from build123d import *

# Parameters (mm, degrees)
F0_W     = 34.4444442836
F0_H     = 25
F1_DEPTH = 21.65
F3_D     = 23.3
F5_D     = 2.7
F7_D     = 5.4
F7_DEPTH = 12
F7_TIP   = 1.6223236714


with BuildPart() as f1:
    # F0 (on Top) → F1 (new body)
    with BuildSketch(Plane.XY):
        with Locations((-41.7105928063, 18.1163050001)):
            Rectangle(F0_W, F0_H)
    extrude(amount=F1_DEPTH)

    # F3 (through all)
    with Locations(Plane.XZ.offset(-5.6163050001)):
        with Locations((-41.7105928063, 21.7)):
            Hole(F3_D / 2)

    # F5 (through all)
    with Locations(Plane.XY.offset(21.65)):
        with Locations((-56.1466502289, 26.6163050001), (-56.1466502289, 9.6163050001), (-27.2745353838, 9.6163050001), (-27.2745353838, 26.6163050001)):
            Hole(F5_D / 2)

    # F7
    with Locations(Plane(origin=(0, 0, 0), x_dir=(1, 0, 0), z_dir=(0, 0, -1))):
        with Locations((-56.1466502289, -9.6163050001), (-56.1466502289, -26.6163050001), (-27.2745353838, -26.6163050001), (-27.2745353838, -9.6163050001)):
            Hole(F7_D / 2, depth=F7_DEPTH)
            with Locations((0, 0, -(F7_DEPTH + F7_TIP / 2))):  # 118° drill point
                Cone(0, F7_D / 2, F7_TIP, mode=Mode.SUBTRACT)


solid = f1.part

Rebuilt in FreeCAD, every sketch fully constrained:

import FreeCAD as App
import Part
import Sketcher

V = App.Vector

doc = App.newDocument("Part")
body = doc.addObject("PartDesign::Body", "Body")

sketch1 = doc.addObject("Sketcher::SketchObject", "Sketch")
body.addObject(sketch1)
sketch1.AttachmentSupport = (doc.XY_Plane, [""])
sketch1.MapMode = "FlatFace"
sketch1.addGeometry(Part.LineSegment(V(-59, 31, 0), V(-59, 6, 0)), False)
sketch1.addGeometry(Part.LineSegment(V(-59, 6, 0), V(-24, 6, 0)), False)
sketch1.addGeometry(Part.LineSegment(V(-24, 6, 0), V(-24, 31, 0)), False)
sketch1.addGeometry(Part.LineSegment(V(-24, 31, 0), V(-59, 31, 0)), False)
sketch1.addConstraint(Sketcher.Constraint("Coincident", 0, 2, 1, 1))
sketch1.addConstraint(Sketcher.Constraint("Coincident", 1, 2, 2, 1))
sketch1.addConstraint(Sketcher.Constraint("Coincident", 2, 2, 3, 1))
sketch1.addConstraint(Sketcher.Constraint("Coincident", 3, 2, 0, 1))
sketch1.addConstraint(Sketcher.Constraint("Vertical", 0))
sketch1.addConstraint(Sketcher.Constraint("Horizontal", 1))
sketch1.addConstraint(Sketcher.Constraint("Vertical", 2))
sketch1.addConstraint(Sketcher.Constraint("Horizontal", 3))
sketch1.addConstraint(Sketcher.Constraint("DistanceY", 0, 2, 0, 1, 25.0))
sketch1.addConstraint(Sketcher.Constraint("DistanceX", 1, 1, 1, 2, 34.444444))
sketch1.addConstraint(Sketcher.Constraint("DistanceX", 1, 2, -1, 1, 24.488371))
sketch1.addConstraint(Sketcher.Constraint("DistanceY", -1, 1, 0, 2, 5.616305))
pad1 = doc.addObject("PartDesign::Pad", "Pad")
body.addObject(pad1)
pad1.Profile = sketch1
pad1.Length = 21.65

sketch2 = doc.addObject("Sketcher::SketchObject", "Sketch001")
body.addObject(sketch2)
sketch2.AttachmentSupport = (doc.XZ_Plane, [""])
sketch2.MapMode = "FlatFace"
sketch2.AttachmentOffset = App.Placement(V(0, 0, -5.616305), App.Rotation())
sketch2.addGeometry(Part.Circle(V(-42, 22, 0), V(0, 0, 1), 12), False)
sketch2.addConstraint(Sketcher.Constraint("Diameter", 0, 23.3))
sketch2.addConstraint(Sketcher.Constraint("DistanceY", -1, 1, 0, 3, 21.7))
sketch2.addConstraint(Sketcher.Constraint("DistanceX", 0, 3, -1, 1, 41.710593))
doc.recompute()
hole = doc.addObject("PartDesign::Hole", "Hole")
body.addObject(hole)
hole.Profile = sketch2
hole.ThreadType = "None"
hole.Diameter = 23.3
hole.DepthType = "ThroughAll"

sketch3 = doc.addObject("Sketcher::SketchObject", "Sketch002")
body.addObject(sketch3)
sketch3.AttachmentSupport = (doc.XY_Plane, [""])
sketch3.MapMode = "FlatFace"
sketch3.AttachmentOffset = App.Placement(V(0, 0, 21.65), App.Rotation())
sketch3.addGeometry(Part.Circle(V(-56.1, 26.6, 0), V(0, 0, 1), 1.4), False)
sketch3.addGeometry(Part.Circle(V(-56.1, 9.6, 0), V(0, 0, 1), 1.4), False)
sketch3.addGeometry(Part.Circle(V(-27.3, 9.6, 0), V(0, 0, 1), 1.4), False)
sketch3.addGeometry(Part.Circle(V(-27.3, 26.6, 0), V(0, 0, 1), 1.4), False)
sketch3.addConstraint(Sketcher.Constraint("Equal", 0, 1))
sketch3.addConstraint(Sketcher.Constraint("Equal", 1, 2))
sketch3.addConstraint(Sketcher.Constraint("Equal", 2, 3))
sketch3.addConstraint(Sketcher.Constraint("Horizontal", 1, 3, 2, 3))
sketch3.addConstraint(Sketcher.Constraint("Horizontal", 0, 3, 3, 3))
sketch3.addConstraint(Sketcher.Constraint("Vertical", 0, 3, 1, 3))
sketch3.addConstraint(Sketcher.Constraint("Vertical", 2, 3, 3, 3))
sketch3.addConstraint(Sketcher.Constraint("Diameter", 0, 2.7))
sketch3.addConstraint(Sketcher.Constraint("DistanceY", 1, 3, 0, 3, 17.0))
sketch3.addConstraint(Sketcher.Constraint("DistanceX", 0, 3, -1, 1, 56.14665))
sketch3.addConstraint(Sketcher.Constraint("DistanceY", -1, 1, 0, 3, 26.616305))
sketch3.addConstraint(Sketcher.Constraint("DistanceX", 2, 3, -1, 1, 27.274535))
doc.recompute()
hole2 = doc.addObject("PartDesign::Hole", "Hole001")
body.addObject(hole2)
hole2.Profile = sketch3
hole2.ThreadType = "None"
hole2.Diameter = 2.7
hole2.DepthType = "ThroughAll"

sketch4 = doc.addObject("Sketcher::SketchObject", "Sketch003")
body.addObject(sketch4)
sketch4.AttachmentSupport = (doc.XY_Plane, [""])
sketch4.MapMode = "FlatFace"
sketch4.addGeometry(Part.Circle(V(-56.1, 9.6, 0), V(0, 0, 1), 2.7), False)
sketch4.addGeometry(Part.Circle(V(-56.1, 26.6, 0), V(0, 0, 1), 2.7), False)
sketch4.addGeometry(Part.Circle(V(-27.3, 26.6, 0), V(0, 0, 1), 2.7), False)
sketch4.addGeometry(Part.Circle(V(-27.3, 9.6, 0), V(0, 0, 1), 2.7), False)
sketch4.addConstraint(Sketcher.Constraint("Equal", 0, 1))
sketch4.addConstraint(Sketcher.Constraint("Equal", 1, 2))
sketch4.addConstraint(Sketcher.Constraint("Equal", 2, 3))
sketch4.addConstraint(Sketcher.Constraint("Horizontal", 1, 3, 2, 3))
sketch4.addConstraint(Sketcher.Constraint("Horizontal", 0, 3, 3, 3))
sketch4.addConstraint(Sketcher.Constraint("Vertical", 0, 3, 1, 3))
sketch4.addConstraint(Sketcher.Constraint("Vertical", 2, 3, 3, 3))
sketch4.addConstraint(Sketcher.Constraint("Diameter", 0, 5.4))
sketch4.addConstraint(Sketcher.Constraint("DistanceY", 0, 3, 1, 3, 17.0))
sketch4.addConstraint(Sketcher.Constraint("DistanceX", 0, 3, -1, 1, 56.14665))
sketch4.addConstraint(Sketcher.Constraint("DistanceY", -1, 1, 0, 3, 9.616305))
sketch4.addConstraint(Sketcher.Constraint("DistanceX", 2, 3, -1, 1, 27.274535))
doc.recompute()
hole3 = doc.addObject("PartDesign::Hole", "Hole002")
body.addObject(hole3)
hole3.Profile = sketch4
hole3.ThreadType = "None"
hole3.Diameter = 5.4
hole3.DepthType = "Dimension"
hole3.Depth = 12
hole3.DrillPoint = "Angled"
hole3.DrillPointAngle = 118
hole3.Reversed = True

doc.recompute()
